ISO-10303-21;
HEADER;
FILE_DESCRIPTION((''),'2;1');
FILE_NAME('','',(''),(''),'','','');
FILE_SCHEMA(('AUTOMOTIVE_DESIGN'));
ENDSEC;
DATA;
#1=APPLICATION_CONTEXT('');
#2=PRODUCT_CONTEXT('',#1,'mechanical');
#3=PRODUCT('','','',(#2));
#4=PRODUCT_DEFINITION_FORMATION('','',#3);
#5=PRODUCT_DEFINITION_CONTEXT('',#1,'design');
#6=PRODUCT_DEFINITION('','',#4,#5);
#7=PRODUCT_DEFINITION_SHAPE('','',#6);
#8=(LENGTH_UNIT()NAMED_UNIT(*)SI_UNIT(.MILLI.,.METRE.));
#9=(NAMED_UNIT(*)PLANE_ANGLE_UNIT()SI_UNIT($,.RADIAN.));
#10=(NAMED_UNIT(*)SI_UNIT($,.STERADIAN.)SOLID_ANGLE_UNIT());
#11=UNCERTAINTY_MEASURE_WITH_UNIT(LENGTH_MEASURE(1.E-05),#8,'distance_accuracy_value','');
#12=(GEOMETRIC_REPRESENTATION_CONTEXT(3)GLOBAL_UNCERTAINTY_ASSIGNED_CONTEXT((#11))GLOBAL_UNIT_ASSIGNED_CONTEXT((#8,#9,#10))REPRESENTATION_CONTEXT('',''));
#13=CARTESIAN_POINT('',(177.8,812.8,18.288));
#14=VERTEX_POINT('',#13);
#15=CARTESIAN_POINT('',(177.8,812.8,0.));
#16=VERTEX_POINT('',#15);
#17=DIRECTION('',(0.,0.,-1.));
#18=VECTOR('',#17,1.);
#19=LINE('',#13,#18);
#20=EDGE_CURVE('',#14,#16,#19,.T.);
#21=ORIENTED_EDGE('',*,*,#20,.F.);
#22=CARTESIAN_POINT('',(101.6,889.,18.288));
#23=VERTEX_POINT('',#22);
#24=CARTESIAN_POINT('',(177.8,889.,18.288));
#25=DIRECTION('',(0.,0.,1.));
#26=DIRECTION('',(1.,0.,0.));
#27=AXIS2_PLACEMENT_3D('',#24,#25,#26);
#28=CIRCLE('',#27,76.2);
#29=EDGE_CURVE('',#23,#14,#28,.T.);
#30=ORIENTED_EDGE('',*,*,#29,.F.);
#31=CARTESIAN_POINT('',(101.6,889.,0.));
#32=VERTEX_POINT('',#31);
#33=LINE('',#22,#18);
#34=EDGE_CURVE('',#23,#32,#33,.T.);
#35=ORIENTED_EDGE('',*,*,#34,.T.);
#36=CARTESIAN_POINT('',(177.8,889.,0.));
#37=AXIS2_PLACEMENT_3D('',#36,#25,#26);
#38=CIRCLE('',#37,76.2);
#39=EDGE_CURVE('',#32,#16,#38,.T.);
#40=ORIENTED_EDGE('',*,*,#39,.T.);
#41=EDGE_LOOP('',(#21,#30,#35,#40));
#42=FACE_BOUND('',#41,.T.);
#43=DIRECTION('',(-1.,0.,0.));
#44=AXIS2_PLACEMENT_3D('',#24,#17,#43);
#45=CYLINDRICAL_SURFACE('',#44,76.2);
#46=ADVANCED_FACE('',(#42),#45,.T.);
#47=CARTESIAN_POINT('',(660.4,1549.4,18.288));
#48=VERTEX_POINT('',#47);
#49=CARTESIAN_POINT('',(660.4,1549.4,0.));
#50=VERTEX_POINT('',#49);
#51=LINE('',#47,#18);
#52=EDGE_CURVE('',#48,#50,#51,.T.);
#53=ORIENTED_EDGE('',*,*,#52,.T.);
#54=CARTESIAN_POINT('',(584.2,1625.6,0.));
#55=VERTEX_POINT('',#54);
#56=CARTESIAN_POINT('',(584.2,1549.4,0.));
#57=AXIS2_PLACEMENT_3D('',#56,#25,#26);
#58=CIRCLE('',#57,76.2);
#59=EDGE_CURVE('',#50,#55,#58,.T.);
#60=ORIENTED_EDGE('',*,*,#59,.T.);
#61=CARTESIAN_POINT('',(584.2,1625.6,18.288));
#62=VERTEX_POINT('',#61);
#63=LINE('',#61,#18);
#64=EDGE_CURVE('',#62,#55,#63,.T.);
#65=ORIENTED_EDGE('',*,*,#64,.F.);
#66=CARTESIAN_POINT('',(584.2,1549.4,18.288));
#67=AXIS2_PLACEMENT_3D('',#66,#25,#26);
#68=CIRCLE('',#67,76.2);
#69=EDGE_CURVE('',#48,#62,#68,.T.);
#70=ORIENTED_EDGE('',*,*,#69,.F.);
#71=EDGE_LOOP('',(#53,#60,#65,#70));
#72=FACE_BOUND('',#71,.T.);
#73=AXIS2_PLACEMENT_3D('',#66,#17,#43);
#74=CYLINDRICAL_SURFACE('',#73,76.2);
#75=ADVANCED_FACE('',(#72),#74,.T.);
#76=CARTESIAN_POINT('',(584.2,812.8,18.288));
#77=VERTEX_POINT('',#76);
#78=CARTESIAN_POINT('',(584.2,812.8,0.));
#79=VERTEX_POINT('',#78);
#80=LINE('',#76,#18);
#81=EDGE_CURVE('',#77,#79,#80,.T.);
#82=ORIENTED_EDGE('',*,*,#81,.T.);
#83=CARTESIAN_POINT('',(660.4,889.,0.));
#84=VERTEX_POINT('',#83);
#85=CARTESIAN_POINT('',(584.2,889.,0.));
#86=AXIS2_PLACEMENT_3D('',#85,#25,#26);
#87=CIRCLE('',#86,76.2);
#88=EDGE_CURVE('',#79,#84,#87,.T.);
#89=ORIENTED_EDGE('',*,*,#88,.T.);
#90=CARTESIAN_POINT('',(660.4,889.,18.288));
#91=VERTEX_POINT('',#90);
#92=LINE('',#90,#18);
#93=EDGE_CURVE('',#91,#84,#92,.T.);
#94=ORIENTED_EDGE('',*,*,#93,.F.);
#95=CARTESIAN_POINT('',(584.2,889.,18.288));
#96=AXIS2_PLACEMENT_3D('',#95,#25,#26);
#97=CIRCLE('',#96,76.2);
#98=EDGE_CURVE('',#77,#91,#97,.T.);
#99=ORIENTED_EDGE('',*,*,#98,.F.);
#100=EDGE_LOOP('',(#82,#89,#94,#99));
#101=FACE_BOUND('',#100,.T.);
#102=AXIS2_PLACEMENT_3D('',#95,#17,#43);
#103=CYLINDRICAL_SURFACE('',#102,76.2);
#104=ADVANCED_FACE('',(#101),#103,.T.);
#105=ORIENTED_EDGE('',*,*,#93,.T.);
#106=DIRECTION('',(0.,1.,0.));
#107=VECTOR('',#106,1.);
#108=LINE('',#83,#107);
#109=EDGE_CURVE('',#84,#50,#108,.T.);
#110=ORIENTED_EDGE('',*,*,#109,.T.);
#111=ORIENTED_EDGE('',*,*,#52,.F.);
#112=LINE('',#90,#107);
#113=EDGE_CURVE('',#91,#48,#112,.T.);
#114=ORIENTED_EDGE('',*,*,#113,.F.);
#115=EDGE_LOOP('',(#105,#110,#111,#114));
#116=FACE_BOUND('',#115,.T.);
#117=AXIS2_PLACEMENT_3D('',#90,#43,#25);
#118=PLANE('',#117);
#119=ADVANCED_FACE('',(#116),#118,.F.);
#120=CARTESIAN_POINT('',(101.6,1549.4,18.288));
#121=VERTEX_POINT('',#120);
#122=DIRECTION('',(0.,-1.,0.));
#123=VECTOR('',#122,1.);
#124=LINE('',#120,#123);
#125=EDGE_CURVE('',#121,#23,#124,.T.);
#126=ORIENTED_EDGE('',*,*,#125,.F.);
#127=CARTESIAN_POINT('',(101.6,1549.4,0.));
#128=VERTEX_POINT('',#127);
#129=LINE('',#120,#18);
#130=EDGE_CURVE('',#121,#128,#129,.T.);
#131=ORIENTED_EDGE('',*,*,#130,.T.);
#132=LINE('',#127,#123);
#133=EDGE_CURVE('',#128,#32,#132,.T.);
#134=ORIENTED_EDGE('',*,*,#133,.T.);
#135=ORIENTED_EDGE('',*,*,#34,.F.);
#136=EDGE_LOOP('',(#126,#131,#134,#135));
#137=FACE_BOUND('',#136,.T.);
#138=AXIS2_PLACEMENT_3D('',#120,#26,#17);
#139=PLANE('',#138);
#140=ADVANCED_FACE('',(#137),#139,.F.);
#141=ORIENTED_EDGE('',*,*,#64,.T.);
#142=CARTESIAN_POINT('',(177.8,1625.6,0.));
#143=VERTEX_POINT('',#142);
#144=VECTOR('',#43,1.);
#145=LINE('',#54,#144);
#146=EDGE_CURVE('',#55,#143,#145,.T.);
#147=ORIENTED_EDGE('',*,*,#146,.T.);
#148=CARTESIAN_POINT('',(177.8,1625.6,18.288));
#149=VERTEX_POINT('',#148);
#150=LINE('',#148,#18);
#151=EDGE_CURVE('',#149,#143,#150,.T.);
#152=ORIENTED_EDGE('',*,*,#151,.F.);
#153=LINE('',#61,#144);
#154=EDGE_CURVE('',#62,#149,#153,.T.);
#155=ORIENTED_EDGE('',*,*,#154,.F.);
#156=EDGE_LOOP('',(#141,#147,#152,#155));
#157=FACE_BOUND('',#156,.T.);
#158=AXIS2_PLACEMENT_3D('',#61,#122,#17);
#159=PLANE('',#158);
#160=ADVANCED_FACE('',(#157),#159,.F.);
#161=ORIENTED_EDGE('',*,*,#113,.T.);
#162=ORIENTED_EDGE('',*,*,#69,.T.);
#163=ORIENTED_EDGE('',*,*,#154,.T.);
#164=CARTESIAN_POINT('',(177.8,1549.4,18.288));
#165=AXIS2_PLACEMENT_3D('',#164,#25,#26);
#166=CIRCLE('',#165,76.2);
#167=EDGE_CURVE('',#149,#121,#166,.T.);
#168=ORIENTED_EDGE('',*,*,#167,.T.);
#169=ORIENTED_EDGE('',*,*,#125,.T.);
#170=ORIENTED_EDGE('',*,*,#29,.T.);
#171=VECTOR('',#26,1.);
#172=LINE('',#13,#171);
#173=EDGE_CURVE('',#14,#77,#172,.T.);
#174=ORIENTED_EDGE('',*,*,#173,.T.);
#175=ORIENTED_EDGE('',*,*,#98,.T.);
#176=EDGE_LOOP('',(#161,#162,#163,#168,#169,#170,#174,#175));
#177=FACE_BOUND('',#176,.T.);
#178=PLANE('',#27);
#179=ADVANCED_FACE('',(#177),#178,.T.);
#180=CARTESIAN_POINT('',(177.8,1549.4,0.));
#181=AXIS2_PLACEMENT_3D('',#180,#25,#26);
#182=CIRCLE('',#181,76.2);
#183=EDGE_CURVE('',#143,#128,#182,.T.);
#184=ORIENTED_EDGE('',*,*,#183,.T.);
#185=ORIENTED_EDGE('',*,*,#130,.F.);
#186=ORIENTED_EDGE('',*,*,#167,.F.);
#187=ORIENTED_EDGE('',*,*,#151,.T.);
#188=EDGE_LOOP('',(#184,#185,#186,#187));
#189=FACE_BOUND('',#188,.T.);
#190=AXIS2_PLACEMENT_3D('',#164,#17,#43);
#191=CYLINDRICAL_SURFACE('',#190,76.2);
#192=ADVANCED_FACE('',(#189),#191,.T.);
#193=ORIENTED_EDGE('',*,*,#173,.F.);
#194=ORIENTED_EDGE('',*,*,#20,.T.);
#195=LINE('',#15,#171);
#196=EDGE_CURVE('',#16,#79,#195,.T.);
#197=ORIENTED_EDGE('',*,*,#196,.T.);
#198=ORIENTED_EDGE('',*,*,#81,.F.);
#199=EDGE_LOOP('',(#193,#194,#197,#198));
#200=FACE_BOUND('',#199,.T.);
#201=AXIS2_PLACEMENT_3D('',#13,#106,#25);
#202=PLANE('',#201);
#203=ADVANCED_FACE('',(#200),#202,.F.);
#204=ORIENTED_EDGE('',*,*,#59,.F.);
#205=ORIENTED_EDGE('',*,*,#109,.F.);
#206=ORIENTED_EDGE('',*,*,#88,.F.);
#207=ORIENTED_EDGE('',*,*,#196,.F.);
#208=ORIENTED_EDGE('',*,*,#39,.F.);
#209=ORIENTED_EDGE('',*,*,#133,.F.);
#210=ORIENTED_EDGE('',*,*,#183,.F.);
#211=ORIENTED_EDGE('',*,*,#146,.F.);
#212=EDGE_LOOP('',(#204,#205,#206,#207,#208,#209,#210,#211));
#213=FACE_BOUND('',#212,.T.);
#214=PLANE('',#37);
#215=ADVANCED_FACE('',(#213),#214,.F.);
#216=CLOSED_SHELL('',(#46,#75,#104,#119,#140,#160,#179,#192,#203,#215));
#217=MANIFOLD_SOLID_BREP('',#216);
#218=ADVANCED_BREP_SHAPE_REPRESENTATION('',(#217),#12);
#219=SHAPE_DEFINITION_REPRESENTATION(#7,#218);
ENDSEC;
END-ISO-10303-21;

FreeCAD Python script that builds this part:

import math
import FreeCAD as App
import Part
import Sketcher
from FreeCAD import Vector
Q = App.Units.Quantity

doc = App.newDocument("Part")
body = doc.addObject("PartDesign::Body", "Body")

sketch1 = doc.addObject("Sketcher::SketchObject", "Sketch")
body.addObject(sketch1)
sketch1.AttachmentSupport = (doc.XY_Plane, [""])
sketch1.MapMode = "FlatFace"
sketch1.addGeometry([
    Part.LineSegment(Vector(178, 813, 0), Vector(584, 813, 0)),
    Part.ArcOfCircle(Part.Circle(Vector(584, 889, 0), Vector(0, 0, 1), 76), math.radians(-90), math.radians(0)),
    Part.LineSegment(Vector(660, 889, 0), Vector(660, 1549, 0)),
    Part.ArcOfCircle(Part.Circle(Vector(584, 1549, 0), Vector(0, 0, 1), 76), math.radians(0), math.radians(90)),
    Part.LineSegment(Vector(584, 1626, 0), Vector(178, 1626, 0)),
    Part.ArcOfCircle(Part.Circle(Vector(178, 1549, 0), Vector(0, 0, 1), 76), math.radians(90), math.radians(180)),
    Part.LineSegment(Vector(102, 1549, 0), Vector(102, 889, 0)),
    Part.ArcOfCircle(Part.Circle(Vector(178, 889, 0), Vector(0, 0, 1), 76), math.radians(-180), math.radians(-90)),
], False)
sketch1.addConstraint([
    Sketcher.Constraint("Tangent", 0, 2, 1, 1),
    Sketcher.Constraint("Tangent", 1, 2, 2, 1),
    Sketcher.Constraint("Tangent", 2, 2, 3, 1),
    Sketcher.Constraint("Tangent", 3, 2, 4, 1),
    Sketcher.Constraint("Tangent", 4, 2, 5, 1),
    Sketcher.Constraint("Tangent", 5, 2, 6, 1),
    Sketcher.Constraint("Tangent", 6, 2, 7, 1),
    Sketcher.Constraint("Tangent", 7, 2, 0, 1),
    Sketcher.Constraint("Horizontal", 0),
    Sketcher.Constraint("Vertical", 2),
    Sketcher.Constraint("Horizontal", 4),
    Sketcher.Constraint("Vertical", 6),
    Sketcher.Constraint("Equal", 1, 3),
    Sketcher.Constraint("Equal", 3, 5),
    Sketcher.Constraint("Equal", 5, 7),
    Sketcher.Constraint("Radius", 1, Q("3 in")),
    Sketcher.Constraint("DistanceX", 0, 1, 0, 2, Q("16 in")),
    Sketcher.Constraint("DistanceY", 2, 1, 2, 2, Q("26 in")),
    Sketcher.Constraint("DistanceX", -1, 1, 1, 3, Q("23 in")),
    Sketcher.Constraint("DistanceY", -1, 1, 1, 3, Q("35 in")),
])
pad1 = doc.addObject("PartDesign::Pad", "Pad")
body.addObject(pad1)
pad1.Profile = sketch1
pad1.Length = Q("0.72 in")

doc.recompute()
